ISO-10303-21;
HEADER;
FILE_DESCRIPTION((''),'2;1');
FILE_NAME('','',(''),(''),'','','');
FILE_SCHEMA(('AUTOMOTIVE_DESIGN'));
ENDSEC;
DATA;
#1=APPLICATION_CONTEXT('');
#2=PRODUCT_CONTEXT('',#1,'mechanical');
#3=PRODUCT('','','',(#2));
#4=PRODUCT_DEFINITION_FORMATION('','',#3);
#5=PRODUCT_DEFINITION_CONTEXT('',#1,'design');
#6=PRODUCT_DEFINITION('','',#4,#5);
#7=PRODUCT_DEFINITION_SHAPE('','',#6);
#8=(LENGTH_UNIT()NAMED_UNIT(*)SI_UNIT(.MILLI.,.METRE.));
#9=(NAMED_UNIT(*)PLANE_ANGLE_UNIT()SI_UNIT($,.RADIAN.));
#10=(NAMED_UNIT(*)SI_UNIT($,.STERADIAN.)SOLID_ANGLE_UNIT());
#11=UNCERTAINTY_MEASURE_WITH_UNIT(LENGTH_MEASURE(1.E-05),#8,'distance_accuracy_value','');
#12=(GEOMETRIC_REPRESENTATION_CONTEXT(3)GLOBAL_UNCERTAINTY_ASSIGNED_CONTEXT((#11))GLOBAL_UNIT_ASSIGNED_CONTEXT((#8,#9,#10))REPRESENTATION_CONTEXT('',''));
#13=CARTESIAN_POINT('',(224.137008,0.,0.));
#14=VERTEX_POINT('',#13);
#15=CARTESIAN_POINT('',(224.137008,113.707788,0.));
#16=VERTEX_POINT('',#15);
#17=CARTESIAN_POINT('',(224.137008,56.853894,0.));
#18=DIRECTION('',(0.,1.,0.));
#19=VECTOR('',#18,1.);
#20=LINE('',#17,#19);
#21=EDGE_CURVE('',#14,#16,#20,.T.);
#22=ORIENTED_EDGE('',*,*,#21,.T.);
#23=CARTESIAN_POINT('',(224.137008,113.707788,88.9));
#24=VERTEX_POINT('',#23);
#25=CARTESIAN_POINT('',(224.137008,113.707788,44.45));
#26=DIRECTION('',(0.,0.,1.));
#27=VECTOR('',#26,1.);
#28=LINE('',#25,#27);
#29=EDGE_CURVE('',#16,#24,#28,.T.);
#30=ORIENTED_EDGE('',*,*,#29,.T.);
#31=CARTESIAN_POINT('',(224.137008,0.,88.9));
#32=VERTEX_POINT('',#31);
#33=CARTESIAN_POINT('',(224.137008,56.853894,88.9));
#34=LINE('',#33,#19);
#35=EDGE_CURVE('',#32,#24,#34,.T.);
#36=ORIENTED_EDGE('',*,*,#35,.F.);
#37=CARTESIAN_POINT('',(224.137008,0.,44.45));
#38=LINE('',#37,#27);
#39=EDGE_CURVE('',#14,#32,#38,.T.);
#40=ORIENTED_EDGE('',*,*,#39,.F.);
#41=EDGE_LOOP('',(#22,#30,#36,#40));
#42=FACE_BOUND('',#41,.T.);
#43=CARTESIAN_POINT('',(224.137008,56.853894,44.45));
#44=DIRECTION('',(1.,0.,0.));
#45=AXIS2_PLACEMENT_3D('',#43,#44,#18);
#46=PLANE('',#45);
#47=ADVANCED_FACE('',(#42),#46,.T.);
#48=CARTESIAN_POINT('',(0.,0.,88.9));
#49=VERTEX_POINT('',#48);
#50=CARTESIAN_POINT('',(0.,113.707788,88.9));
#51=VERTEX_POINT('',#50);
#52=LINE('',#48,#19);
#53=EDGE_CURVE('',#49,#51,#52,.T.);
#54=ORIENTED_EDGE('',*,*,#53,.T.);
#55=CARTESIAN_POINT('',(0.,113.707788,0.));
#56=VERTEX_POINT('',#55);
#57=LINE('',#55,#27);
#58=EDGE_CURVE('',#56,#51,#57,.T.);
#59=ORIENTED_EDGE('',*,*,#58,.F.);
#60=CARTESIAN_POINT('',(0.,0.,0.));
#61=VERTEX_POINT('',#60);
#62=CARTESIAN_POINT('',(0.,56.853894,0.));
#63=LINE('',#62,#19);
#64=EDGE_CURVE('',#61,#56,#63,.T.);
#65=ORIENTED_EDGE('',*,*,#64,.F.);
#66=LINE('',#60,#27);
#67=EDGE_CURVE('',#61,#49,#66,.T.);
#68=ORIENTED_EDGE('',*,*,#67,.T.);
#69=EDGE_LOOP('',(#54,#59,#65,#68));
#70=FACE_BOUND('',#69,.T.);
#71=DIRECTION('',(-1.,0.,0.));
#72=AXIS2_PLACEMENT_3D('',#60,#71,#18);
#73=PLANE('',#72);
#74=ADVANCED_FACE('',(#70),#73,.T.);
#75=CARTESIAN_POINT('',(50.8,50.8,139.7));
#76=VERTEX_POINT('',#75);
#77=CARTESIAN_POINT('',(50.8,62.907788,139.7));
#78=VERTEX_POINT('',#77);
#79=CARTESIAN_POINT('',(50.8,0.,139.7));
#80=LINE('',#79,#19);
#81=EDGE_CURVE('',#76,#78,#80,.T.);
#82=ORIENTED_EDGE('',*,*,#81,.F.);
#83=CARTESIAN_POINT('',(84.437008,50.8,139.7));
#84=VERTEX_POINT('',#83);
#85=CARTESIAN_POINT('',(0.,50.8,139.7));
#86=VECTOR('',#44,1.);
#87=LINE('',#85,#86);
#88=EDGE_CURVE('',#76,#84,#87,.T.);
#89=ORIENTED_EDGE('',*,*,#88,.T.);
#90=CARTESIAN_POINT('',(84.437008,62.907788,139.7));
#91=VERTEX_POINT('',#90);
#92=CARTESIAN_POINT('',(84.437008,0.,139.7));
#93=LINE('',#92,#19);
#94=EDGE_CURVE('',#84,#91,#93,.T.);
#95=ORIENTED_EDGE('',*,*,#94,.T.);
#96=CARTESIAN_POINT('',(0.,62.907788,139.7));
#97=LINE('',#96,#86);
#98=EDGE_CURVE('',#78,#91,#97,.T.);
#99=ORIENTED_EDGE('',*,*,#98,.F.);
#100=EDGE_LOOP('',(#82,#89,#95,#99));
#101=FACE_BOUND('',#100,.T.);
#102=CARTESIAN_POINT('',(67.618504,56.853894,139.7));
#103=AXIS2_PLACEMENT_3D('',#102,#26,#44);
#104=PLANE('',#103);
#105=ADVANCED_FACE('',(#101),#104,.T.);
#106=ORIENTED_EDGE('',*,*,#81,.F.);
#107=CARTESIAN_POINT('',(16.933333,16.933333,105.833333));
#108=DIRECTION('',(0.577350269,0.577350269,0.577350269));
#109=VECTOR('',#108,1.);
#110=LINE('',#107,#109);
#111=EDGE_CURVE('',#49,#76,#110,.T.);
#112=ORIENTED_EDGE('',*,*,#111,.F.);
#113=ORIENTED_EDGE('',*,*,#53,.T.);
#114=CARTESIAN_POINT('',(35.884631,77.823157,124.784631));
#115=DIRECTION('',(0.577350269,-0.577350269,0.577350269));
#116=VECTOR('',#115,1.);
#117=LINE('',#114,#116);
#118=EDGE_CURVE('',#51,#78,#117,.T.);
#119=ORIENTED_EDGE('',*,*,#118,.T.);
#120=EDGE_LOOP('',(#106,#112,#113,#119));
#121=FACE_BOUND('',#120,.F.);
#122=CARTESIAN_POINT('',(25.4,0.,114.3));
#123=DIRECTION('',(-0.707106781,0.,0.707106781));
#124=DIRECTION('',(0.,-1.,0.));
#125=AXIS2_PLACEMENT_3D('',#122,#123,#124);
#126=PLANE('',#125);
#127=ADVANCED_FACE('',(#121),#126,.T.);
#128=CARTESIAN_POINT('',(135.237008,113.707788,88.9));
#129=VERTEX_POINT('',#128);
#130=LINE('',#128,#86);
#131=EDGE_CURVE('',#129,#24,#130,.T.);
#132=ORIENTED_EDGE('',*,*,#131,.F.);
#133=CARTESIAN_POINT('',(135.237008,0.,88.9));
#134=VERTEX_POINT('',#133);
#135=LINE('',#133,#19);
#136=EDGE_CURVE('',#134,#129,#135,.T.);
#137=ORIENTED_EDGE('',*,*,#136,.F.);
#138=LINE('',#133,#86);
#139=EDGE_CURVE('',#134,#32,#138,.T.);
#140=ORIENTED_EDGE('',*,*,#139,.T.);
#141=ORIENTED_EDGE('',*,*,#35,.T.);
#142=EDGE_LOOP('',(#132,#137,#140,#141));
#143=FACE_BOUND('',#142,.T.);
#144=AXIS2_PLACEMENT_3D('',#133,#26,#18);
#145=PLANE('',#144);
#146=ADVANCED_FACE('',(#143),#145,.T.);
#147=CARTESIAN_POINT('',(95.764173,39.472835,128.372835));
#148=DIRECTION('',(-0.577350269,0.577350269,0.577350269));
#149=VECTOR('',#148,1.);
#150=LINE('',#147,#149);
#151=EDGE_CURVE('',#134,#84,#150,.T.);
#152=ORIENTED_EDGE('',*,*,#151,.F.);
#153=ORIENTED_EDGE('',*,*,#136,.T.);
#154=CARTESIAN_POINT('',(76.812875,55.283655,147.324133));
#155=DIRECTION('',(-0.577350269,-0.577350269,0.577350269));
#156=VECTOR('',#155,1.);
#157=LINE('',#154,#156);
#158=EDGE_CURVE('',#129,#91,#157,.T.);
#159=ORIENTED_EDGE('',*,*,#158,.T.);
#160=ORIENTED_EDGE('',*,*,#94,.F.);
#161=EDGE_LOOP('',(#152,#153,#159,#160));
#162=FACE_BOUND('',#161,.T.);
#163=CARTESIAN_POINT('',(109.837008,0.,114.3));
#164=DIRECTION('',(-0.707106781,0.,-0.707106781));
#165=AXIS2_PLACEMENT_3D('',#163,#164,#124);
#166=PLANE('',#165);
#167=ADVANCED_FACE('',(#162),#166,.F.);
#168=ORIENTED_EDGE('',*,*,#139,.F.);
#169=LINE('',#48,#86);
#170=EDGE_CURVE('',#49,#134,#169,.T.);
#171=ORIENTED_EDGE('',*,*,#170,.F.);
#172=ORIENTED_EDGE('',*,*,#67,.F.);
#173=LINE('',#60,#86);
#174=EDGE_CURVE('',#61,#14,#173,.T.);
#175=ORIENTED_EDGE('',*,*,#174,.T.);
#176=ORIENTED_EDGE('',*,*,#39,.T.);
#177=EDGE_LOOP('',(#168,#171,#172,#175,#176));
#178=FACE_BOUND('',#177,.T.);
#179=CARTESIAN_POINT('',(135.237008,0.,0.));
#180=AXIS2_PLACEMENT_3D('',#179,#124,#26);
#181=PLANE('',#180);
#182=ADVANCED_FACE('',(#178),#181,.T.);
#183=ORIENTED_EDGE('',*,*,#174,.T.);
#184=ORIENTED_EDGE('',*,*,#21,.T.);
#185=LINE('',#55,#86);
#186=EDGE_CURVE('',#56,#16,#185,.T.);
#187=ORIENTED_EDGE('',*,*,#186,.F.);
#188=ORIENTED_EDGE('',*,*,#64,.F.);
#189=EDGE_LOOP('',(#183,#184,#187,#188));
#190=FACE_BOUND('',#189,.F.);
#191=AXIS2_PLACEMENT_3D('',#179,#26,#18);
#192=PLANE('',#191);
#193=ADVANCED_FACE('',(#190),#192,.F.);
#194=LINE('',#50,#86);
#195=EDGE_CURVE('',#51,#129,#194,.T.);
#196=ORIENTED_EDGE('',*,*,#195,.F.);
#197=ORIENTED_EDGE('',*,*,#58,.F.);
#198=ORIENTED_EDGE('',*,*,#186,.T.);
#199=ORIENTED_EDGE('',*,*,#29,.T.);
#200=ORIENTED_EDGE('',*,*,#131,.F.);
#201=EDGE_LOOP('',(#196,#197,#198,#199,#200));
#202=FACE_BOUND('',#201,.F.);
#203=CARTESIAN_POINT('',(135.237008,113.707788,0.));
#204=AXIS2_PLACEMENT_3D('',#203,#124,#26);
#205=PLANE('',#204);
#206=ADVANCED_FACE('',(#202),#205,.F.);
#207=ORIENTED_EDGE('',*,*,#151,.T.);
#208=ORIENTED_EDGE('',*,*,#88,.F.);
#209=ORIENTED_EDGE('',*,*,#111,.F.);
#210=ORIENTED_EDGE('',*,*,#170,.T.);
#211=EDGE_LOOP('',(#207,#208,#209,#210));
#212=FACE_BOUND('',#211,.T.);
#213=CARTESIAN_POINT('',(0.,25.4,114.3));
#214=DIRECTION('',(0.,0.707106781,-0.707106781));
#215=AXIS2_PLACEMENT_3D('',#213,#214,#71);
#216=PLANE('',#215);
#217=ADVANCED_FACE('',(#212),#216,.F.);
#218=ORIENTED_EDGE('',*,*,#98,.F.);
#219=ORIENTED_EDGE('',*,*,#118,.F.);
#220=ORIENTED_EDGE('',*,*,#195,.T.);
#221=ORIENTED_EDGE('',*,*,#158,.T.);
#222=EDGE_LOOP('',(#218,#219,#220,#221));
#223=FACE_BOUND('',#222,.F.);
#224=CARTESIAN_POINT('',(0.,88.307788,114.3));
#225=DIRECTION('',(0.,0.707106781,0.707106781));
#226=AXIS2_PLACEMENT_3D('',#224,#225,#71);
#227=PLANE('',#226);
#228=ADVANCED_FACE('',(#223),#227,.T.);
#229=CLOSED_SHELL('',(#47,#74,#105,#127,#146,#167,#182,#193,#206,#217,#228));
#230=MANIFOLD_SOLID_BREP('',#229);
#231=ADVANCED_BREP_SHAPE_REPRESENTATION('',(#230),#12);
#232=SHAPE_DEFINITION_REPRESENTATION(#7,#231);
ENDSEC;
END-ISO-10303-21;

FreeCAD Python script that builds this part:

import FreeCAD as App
import Part
import Sketcher

V = App.Vector
Q = App.Units.Quantity


def edges_at(feature, points):
    """Names of the edges that pass closest to the given points."""
    edges = feature.Shape.Edges
    near = lambda p: min(range(len(edges)), key=lambda i: edges[i].distToShape(Part.Vertex(*p))[0])
    return sorted({f"Edge{near(p) + 1}" for p in points})


def add_polygon(sketch, points):
    """Adds a closed chain of lines whose ends are joined by coincident constraints."""
    first, n = sketch.GeometryCount, len(points)
    for a, b in zip(points, points[1:] + points[:1]):
        sketch.addGeometry(Part.LineSegment(App.Vector(*a, 0), App.Vector(*b, 0)), False)
    for i in range(n):
        sketch.addConstraint(Sketcher.Constraint("Coincident", first + i, 2, first + (i + 1) % n, 1))

doc = App.newDocument("Part")
params = doc.addObject("Spreadsheet::Sheet", "Params")
for row, (alias, value) in enumerate([
    ("pad1_length", "5.5 in"),
    ("chamfer_size", "2 in"),
    ("sketch2_height", "3.5 in"),
    ("pad2_length", "3.5 in"),
], start=1):
    params.set(f"A{row}", alias)
    params.set(f"B{row}", "=" + value)
    params.setAlias(f"B{row}", alias)

body = doc.addObject("PartDesign::Body", "Body")

# Sketch on XY plane
sketch1 = body.newObject("Sketcher::SketchObject", "Sketch")
sketch1.AttachmentSupport = (doc.getObject("XY_Plane"), [""])
sketch1.MapMode = "FlatFace"
add_polygon(sketch1, [(0, 114), (0, 0), (135, 0), (135, 114)])  # lines 0-3
sketch1.addConstraint([
    Sketcher.Constraint("Vertical", 0),
    Sketcher.Constraint("Horizontal", 1),
    Sketcher.Constraint("Vertical", 2),
    Sketcher.Constraint("Horizontal", 3),
    Sketcher.Constraint("Coincident", 0, 2, -1, 1),
    Sketcher.Constraint("DistanceX", 1, 1, 1, 2, 135.237008),
    Sketcher.Constraint("DistanceY", 0, 2, 0, 1, 113.707788),
])
pad1 = body.newObject("PartDesign::Pad", "Pad")
pad1.Profile = sketch1
pad1.setExpression("Length", "Params.pad1_length")
doc.recompute()

chamfer = body.newObject("PartDesign::Chamfer", "Chamfer")
chamfer.Base = (pad1, edges_at(pad1, [
    (0, 56.854, 139.7),
    (67.619, 0, 139.7),
    (135.237, 56.854, 139.7),
    (67.619, 113.708, 139.7),
]))
chamfer.setExpression("Size", "Params.chamfer_size")

# Sketch on YZ plane
sketch2 = body.newObject("Sketcher::SketchObject", "Sketch001")
sketch2.AttachmentSupport = (doc.getObject("YZ_Plane"), [""])
sketch2.MapMode = "FlatFace"
sketch2.AttachmentOffset = App.Placement(V(0, 0, 135.237008), App.Rotation())
add_polygon(sketch2, [(0, 89), (0, 0), (114, 0), (114, 89)])  # lines 0-3
sketch2.addConstraint([
    Sketcher.Constraint("Vertical", 0),
    Sketcher.Constraint("Horizontal", 1),
    Sketcher.Constraint("Vertical", 2),
    Sketcher.Constraint("Horizontal", 3),
    Sketcher.Constraint("Coincident", 0, 2, -1, 1),
    Sketcher.Constraint("DistanceY", 0, 2, 0, 1, Q("3.5 in")),
    Sketcher.Constraint("DistanceX", 1, 1, 1, 2, 113.707788),
])
sketch2.setExpression("Constraints[9]", "Params.sketch2_height")
pad2 = body.newObject("PartDesign::Pad", "Pad001")
pad2.Profile = sketch2
pad2.setExpression("Length", "Params.pad2_length")

doc.recompute()
